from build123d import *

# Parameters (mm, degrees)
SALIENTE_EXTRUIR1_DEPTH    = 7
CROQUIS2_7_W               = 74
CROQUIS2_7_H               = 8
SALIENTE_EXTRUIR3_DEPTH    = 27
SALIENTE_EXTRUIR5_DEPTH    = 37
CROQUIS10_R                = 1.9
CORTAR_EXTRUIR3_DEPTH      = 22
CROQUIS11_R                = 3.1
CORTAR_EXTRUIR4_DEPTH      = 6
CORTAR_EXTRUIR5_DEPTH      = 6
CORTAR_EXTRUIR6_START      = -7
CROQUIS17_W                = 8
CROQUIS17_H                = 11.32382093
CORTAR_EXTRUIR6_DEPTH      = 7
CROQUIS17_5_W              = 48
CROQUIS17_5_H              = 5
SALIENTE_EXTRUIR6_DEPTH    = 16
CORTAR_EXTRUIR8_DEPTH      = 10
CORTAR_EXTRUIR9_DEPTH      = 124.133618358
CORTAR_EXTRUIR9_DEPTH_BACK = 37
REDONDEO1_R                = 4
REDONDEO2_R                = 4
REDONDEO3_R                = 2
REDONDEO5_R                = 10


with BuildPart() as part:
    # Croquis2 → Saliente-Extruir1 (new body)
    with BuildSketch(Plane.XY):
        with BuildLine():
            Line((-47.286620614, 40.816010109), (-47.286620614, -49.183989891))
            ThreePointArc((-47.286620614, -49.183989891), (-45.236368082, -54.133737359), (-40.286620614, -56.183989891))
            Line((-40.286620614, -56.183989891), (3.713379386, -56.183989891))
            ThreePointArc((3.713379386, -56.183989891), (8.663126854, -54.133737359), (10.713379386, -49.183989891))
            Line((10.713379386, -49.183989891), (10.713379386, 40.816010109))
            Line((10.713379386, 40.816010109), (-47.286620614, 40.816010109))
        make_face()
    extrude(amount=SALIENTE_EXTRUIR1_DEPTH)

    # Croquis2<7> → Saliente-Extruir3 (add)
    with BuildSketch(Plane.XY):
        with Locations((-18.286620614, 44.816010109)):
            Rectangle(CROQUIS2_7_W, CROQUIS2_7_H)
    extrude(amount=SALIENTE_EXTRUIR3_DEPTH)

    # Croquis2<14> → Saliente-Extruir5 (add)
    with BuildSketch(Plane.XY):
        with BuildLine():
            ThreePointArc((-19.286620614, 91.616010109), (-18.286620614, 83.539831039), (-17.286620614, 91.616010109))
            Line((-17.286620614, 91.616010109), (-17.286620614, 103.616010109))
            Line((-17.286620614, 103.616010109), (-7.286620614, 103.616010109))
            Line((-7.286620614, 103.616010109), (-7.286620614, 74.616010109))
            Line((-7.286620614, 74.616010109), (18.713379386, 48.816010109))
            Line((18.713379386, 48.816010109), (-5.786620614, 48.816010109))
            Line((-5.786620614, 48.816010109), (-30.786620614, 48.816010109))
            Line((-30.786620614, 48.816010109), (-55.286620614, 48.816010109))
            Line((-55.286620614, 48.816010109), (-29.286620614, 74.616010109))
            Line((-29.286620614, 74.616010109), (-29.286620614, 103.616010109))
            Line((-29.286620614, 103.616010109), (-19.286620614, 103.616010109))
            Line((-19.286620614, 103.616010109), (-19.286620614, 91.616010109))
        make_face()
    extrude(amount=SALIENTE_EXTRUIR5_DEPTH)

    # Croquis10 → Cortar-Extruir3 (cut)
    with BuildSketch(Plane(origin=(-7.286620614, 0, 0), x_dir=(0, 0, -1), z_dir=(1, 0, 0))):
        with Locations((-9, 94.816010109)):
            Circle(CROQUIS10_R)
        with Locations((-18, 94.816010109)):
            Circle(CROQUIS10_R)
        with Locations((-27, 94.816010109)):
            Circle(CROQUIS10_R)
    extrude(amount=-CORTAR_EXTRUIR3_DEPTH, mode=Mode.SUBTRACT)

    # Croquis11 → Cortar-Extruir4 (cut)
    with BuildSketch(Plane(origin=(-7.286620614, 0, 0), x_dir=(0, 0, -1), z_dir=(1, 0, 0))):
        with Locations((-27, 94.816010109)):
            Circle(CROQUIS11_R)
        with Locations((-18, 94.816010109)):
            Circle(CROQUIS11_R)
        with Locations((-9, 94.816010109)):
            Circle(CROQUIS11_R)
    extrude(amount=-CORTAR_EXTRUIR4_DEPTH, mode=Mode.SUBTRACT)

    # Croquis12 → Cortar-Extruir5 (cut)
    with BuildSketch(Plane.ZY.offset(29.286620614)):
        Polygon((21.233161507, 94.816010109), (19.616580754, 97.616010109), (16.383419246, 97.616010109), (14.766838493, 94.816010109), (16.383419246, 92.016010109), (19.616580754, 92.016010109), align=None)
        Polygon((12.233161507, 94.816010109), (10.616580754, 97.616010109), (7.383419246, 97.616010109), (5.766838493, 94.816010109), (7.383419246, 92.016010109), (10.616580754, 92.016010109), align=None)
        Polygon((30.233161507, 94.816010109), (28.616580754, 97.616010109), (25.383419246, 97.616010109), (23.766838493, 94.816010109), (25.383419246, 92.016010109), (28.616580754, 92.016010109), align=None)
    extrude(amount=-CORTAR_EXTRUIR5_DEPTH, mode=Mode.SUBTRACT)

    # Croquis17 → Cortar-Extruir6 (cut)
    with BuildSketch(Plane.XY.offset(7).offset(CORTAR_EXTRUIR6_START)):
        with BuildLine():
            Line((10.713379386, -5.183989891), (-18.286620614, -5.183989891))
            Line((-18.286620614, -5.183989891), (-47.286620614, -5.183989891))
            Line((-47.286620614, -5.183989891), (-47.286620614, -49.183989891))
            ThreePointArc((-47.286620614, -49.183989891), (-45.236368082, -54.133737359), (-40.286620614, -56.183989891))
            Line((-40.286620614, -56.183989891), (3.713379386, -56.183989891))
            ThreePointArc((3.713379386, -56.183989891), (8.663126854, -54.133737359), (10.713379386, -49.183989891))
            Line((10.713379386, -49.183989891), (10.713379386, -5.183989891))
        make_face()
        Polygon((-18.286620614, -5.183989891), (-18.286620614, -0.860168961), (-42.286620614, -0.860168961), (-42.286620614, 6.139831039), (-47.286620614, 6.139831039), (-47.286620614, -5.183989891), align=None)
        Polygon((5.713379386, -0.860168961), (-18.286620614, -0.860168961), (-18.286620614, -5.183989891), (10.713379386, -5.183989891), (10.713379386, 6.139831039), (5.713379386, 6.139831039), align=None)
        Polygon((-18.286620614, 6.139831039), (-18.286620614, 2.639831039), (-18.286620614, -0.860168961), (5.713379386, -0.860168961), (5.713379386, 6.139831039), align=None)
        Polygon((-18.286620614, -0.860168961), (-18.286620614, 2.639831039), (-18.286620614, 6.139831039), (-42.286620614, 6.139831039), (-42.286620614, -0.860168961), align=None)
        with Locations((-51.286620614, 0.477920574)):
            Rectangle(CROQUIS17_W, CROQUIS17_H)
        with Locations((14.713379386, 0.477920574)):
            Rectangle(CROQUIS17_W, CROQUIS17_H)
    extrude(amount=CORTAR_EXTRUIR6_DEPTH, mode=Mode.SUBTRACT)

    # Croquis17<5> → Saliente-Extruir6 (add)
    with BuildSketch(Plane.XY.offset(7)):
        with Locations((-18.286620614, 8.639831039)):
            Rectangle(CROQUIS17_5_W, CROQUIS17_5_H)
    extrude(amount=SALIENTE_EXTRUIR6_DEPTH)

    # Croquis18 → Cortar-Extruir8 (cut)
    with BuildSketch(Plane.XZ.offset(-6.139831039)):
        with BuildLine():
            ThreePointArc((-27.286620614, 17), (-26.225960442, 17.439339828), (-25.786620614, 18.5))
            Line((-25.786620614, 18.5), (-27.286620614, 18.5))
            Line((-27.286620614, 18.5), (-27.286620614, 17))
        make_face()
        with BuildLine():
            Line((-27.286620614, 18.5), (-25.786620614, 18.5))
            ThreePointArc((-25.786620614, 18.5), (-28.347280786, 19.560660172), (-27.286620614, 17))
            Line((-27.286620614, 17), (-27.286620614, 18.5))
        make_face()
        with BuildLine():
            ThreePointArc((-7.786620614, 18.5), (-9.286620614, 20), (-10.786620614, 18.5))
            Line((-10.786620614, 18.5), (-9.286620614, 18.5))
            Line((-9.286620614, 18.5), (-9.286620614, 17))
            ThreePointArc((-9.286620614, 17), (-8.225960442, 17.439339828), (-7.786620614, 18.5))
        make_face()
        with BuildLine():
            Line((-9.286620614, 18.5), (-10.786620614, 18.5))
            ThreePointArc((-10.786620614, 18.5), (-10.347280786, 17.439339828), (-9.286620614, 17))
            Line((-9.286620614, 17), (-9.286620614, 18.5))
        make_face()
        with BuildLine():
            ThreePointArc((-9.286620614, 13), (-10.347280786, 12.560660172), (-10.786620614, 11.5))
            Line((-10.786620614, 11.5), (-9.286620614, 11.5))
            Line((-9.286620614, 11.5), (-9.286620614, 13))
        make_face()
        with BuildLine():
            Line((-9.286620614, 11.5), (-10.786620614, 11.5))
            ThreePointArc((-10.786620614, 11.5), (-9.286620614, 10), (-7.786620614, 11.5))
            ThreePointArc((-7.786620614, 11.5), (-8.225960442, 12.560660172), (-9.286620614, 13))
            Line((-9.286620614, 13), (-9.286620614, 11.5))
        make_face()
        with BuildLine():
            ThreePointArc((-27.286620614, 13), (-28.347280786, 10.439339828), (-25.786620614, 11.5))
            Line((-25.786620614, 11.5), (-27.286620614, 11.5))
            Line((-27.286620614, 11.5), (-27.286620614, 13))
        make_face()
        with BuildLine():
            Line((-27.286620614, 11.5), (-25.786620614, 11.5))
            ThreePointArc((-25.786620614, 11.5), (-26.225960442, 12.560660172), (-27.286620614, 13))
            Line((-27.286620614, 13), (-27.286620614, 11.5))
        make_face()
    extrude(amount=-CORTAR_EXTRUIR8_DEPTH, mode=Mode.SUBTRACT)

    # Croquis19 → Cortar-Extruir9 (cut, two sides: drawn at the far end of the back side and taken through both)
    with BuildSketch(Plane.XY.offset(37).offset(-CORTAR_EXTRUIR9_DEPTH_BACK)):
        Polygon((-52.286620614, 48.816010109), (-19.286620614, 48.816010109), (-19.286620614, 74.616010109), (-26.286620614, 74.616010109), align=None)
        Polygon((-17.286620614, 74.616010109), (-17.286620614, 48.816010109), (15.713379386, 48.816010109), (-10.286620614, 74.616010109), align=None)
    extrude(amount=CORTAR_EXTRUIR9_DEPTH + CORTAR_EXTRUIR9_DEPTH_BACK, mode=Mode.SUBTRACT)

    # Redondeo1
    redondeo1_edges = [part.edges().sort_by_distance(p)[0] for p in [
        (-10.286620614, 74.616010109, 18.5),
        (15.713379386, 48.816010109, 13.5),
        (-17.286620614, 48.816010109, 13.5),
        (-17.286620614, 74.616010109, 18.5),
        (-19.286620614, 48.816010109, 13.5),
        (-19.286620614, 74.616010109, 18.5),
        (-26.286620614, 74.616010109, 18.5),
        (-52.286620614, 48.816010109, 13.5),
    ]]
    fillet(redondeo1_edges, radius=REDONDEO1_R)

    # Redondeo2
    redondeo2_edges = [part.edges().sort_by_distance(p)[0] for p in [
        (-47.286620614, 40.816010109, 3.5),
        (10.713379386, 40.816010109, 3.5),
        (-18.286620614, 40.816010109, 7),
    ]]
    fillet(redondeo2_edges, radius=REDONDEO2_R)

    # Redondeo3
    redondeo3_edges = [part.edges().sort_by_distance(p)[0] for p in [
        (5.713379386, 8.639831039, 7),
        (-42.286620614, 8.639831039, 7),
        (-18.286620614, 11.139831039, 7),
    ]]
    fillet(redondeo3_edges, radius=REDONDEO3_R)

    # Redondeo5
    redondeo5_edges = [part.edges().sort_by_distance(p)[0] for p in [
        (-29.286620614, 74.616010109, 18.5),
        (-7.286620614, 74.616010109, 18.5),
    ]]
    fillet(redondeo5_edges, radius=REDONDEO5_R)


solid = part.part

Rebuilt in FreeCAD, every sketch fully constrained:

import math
import FreeCAD as App
import Part
import Sketcher

V = App.Vector
Q = App.Units.Quantity


def edges_at(feature, points):
    """Names of the edges that pass closest to the given points."""
    edges = feature.Shape.Edges
    near = lambda p: min(range(len(edges)), key=lambda i: edges[i].distToShape(Part.Vertex(*p))[0])
    return sorted({f"Edge{near(p) + 1}" for p in points})

doc = App.newDocument("Part")
params = doc.addObject("Spreadsheet::Sheet", "Params")
for row, (alias, value) in enumerate([
    ("sketch1_radius", "7 mm"),
    ("sketch1_width", "44 mm"),
    ("sketch1_height", "90 mm"),
    ("pad1_length", "7 mm"),
    ("sketch2_width", "74 mm"),
    ("sketch2_height", "8 mm"),
    ("pad2_length", "27 mm"),
    ("sketch3_radius", "4.1 mm"),
    ("sketch3_width", "10 mm"),
    ("sketch3_width2", "74 mm"),
    ("sketch3_height", "12 mm"),
    ("sketch3_height2", "29 mm"),
    ("pad3_length", "37 mm"),
    ("sketch4_diameter", "3.8 mm"),
    ("pocket1_length", "22 mm"),
    ("sketch5_diameter", "6.2 mm"),
    ("pocket2_length", "6 mm"),
    ("pocket3_length", "6 mm"),
    ("sketch7_radius", "7 mm"),
    ("sketch7_width", "44 mm"),
    ("sketch7_width2", "8 mm"),
    ("pocket4_length", "7 mm"),
    ("sketch8_width", "48 mm"),
    ("sketch8_height", "5 mm"),
    ("pad4_length", "16 mm"),
    ("sketch9_radius", "1.5 mm"),
    ("pocket5_length", "10 mm"),
    ("sketch10_width", "33 mm"),
    ("sketch10_width2", "7 mm"),
    ("sketch10_height", "25.8 mm"),
    ("fillet_radius", "4 mm"),
    ("fillet2_radius", "4 mm"),
    ("fillet3_radius", "2 mm"),
    ("fillet4_radius", "10 mm"),
], start=1):
    params.set(f"A{row}", alias)
    params.set(f"B{row}", "=" + value)
    params.setAlias(f"B{row}", alias)

body = doc.addObject("PartDesign::Body", "Body")

# Sketch on XY plane
sketch1 = body.newObject("Sketcher::SketchObject", "Sketch")
sketch1.AttachmentSupport = (doc.getObject("XY_Plane"), [""])
sketch1.MapMode = "FlatFace"
sketch1.addGeometry([
    Part.LineSegment(V(-47.286621, 40.81601, 0), V(-47.286621, -49.18399, 0)),  # 0
    Part.ArcOfCircle(Part.Circle(V(-40.286621, -49.18399, 0), V(0, 0, 1), 7), math.radians(-180), math.radians(-90)),  # 1
    Part.LineSegment(V(-40.286621, -56.18399, 0), V(3.713379, -56.18399, 0)),  # 2
    Part.ArcOfCircle(Part.Circle(V(3.713379, -49.18399, 0), V(0, 0, 1), 7), math.radians(-90), math.radians(0)),  # 3
    Part.LineSegment(V(10.713379, -49.18399, 0), V(10.713379, 40.81601, 0)),  # 4
    Part.LineSegment(V(10.713379, 40.81601, 0), V(-47.286621, 40.81601, 0)),  # 5
], False)
sketch1.addConstraint([
    Sketcher.Constraint("Tangent", 0, 2, 1, 1),
    Sketcher.Constraint("Tangent", 1, 2, 2, 1),
    Sketcher.Constraint("Tangent", 2, 2, 3, 1),
    Sketcher.Constraint("Tangent", 3, 2, 4, 1),
    Sketcher.Constraint("Coincident", 4, 2, 5, 1),
    Sketcher.Constraint("Coincident", 5, 2, 0, 1),
    Sketcher.Constraint("Vertical", 0),
    Sketcher.Constraint("Horizontal", 2),
    Sketcher.Constraint("Vertical", 4),
    Sketcher.Constraint("Horizontal", 5),
    Sketcher.Constraint("Equal", 1, 3),
    Sketcher.Constraint("Radius", 1, Q("7 mm")),
    Sketcher.Constraint("DistanceX", 2, 1, 2, 2, Q("44 mm")),
    Sketcher.Constraint("DistanceY", 0, 2, 0, 1, Q("90 mm")),
    Sketcher.Constraint("DistanceX", 1, 3, -1, 1, Q("40.286621 mm")),
    Sketcher.Constraint("DistanceY", 1, 3, -1, 1, Q("49.18399 mm")),
])
sketch1.setExpression("Constraints[11]", "Params.sketch1_radius")
sketch1.setExpression("Constraints[12]", "Params.sketch1_width")
sketch1.setExpression("Constraints[13]", "Params.sketch1_height")
pad1 = body.newObject("PartDesign::Pad", "Pad")
pad1.Profile = sketch1
pad1.setExpression("Length", "Params.pad1_length")

# Sketch on XY plane
sketch2 = body.newObject("Sketcher::SketchObject", "Sketch001")
sketch2.AttachmentSupport = (doc.getObject("XY_Plane"), [""])
sketch2.MapMode = "FlatFace"
sketch2.addGeometry([
    Part.LineSegment(V(-55.286621, 48.81601, 0), V(-55.286621, 40.81601, 0)),
    Part.LineSegment(V(-55.286621, 40.81601, 0), V(18.713379, 40.81601, 0)),
    Part.LineSegment(V(18.713379, 40.81601, 0), V(18.713379, 48.81601, 0)),
    Part.LineSegment(V(18.713379, 48.81601, 0), V(-55.286621, 48.81601, 0)),
], False)
sketch2.addConstraint([
    Sketcher.Constraint("Coincident", 0, 2, 1, 1),
    Sketcher.Constraint("Coincident", 1, 2, 2, 1),
    Sketcher.Constraint("Coincident", 2, 2, 3, 1),
    Sketcher.Constraint("Coincident", 3, 2, 0, 1),
    Sketcher.Constraint("Vertical", 0),
    Sketcher.Constraint("Horizontal", 1),
    Sketcher.Constraint("Vertical", 2),
    Sketcher.Constraint("Horizontal", 3),
    Sketcher.Constraint("DistanceX", 1, 1, 1, 2, Q("74 mm")),
    Sketcher.Constraint("DistanceY", 0, 2, 0, 1, Q("8 mm")),
    Sketcher.Constraint("DistanceX", 0, 2, -1, 1, Q("55.286621 mm")),
    Sketcher.Constraint("DistanceY", -1, 1, 0, 2, Q("40.81601 mm")),
])
sketch2.setExpression("Constraints[8]", "Params.sketch2_width")
sketch2.setExpression("Constraints[9]", "Params.sketch2_height")
pad2 = body.newObject("PartDesign::Pad", "Pad001")
pad2.Profile = sketch2
pad2.setExpression("Length", "Params.pad2_length")

# Sketch on XY plane
sketch3 = body.newObject("Sketcher::SketchObject", "Sketch002")
sketch3.AttachmentSupport = (doc.getObject("XY_Plane"), [""])
sketch3.MapMode = "FlatFace"
sketch3.addGeometry([
    Part.ArcOfCircle(Part.Circle(V(-18.286621, 87.639831, 0), V(0, 0, 1), 4.1), math.radians(104.116981), math.radians(435.883019)),  # 0
    Part.LineSegment(V(-19.286621, 91.61601, 0), V(-19.286621, 103.61601, 0)),  # 1
    Part.LineSegment(V(-19.286621, 103.61601, 0), V(-29.286621, 103.61601, 0)),  # 2
    Part.LineSegment(V(-29.286621, 103.61601, 0), V(-29.286621, 74.61601, 0)),  # 3
    Part.LineSegment(V(-29.286621, 74.61601, 0), V(-55.286621, 48.81601, 0)),  # 4
    Part.LineSegment(V(-55.286621, 48.81601, 0), V(18.713379, 48.81601, 0)),  # 5
    Part.LineSegment(V(18.713379, 48.81601, 0), V(-7.286621, 74.61601, 0)),  # 6
    Part.LineSegment(V(-7.286621, 74.61601, 0), V(-7.286621, 103.61601, 0)),  # 7
    Part.LineSegment(V(-7.286621, 103.61601, 0), V(-17.286621, 103.61601, 0)),  # 8
    Part.LineSegment(V(-17.286621, 103.61601, 0), V(-17.286621, 91.61601, 0)),  # 9
], False)
sketch3.addConstraint([
    Sketcher.Constraint("Coincident", 0, 1, 1, 1),
    Sketcher.Constraint("Coincident", 1, 2, 2, 1),
    Sketcher.Constraint("Coincident", 2, 2, 3, 1),
    Sketcher.Constraint("Coincident", 3, 2, 4, 1),
    Sketcher.Constraint("Coincident", 4, 2, 5, 1),
    Sketcher.Constraint("Coincident", 5, 2, 6, 1),
    Sketcher.Constraint("Coincident", 6, 2, 7, 1),
    Sketcher.Constraint("Coincident", 7, 2, 8, 1),
    Sketcher.Constraint("Coincident", 8, 2, 9, 1),
    Sketcher.Constraint("Coincident", 9, 2, 0, 2),
    Sketcher.Constraint("Vertical", 1),
    Sketcher.Constraint("Horizontal", 2),
    Sketcher.Constraint("Vertical", 3),
    Sketcher.Constraint("Horizontal", 5),
    Sketcher.Constraint("Vertical", 7),
    Sketcher.Constraint("Horizontal", 8),
    Sketcher.Constraint("Vertical", 9),
    Sketcher.Constraint("Horizontal", 3, 2, 6, 2),
    Sketcher.Constraint("Horizontal", 2, 2, 7, 2),
    Sketcher.Constraint("Horizontal", 0, 1, 9, 2),
    Sketcher.Constraint("Equal", 2, 8),
    Sketcher.Constraint("Equal", 4, 6),
    Sketcher.Constraint("Radius", 0, Q("4.1 mm")),
    Sketcher.Constraint("DistanceX", 2, 2, 2, 1, Q("10 mm")),
    Sketcher.Constraint("DistanceX", 5, 1, 5, 2, Q("74 mm")),
    Sketcher.Constraint("DistanceY", 1, 1, 1, 2, Q("12 mm")),
    Sketcher.Constraint("DistanceY", 3, 2, 3, 1, Q("29 mm")),
    Sketcher.Constraint("DistanceX", 0, 1, 0, 3, Q("1 mm")),
    Sketcher.Constraint("DistanceY", 4, 2, 3, 2, Q("25.8 mm")),
    Sketcher.Constraint("DistanceX", 0, 3, -1, 1, Q("18.286621 mm")),
    Sketcher.Constraint("DistanceY", -1, 1, 0, 3, Q("87.639831 mm")),
])
sketch3.setExpression("Constraints[22]", "Params.sketch3_radius")
sketch3.setExpression("Constraints[23]", "Params.sketch3_width")
sketch3.setExpression("Constraints[24]", "Params.sketch3_width2")
sketch3.setExpression("Constraints[25]", "Params.sketch3_height")
sketch3.setExpression("Constraints[26]", "Params.sketch3_height2")
pad3 = body.newObject("PartDesign::Pad", "Pad002")
pad3.Profile = sketch3
pad3.setExpression("Length", "Params.pad3_length")

# Sketch on YZ plane
sketch4 = body.newObject("Sketcher::SketchObject", "Sketch003")
sketch4.AttachmentSupport = (doc.getObject("YZ_Plane"), [""])
sketch4.MapMode = "FlatFace"
sketch4.AttachmentOffset = App.Placement(V(0, 0, -7.286621), App.Rotation())
sketch4.addGeometry([
    Part.Circle(V(94.81601, 9, 0), V(0, 0, 1), 1.9),
    Part.Circle(V(94.81601, 18, 0), V(0, 0, 1), 1.9),
    Part.Circle(V(94.81601, 27, 0), V(0, 0, 1), 1.9),
], False)
sketch4.addConstraint([
    Sketcher.Constraint("Equal", 0, 1),
    Sketcher.Constraint("Equal", 1, 2),
    Sketcher.Constraint("Vertical", 0, 3, 1, 3),
    Sketcher.Constraint("Vertical", 1, 3, 2, 3),
    Sketcher.Constraint("Diameter", 0, Q("3.8 mm")),
    Sketcher.Constraint("DistanceY", -1, 1, 0, 3, Q("9 mm")),
    Sketcher.Constraint("DistanceY", -1, 1, 1, 3, Q("18 mm")),
    Sketcher.Constraint("DistanceY", -1, 1, 2, 3, Q("27 mm")),
    Sketcher.Constraint("DistanceX", -1, 1, 0, 3, Q("94.81601 mm")),
])
sketch4.setExpression("Constraints[4]", "Params.sketch4_diameter")
pocket1 = body.newObject("PartDesign::Pocket", "Pocket")
pocket1.Profile = sketch4
pocket1.setExpression("Length", "Params.pocket1_length")

# Sketch on YZ plane
sketch5 = body.newObject("Sketcher::SketchObject", "Sketch004")
sketch5.AttachmentSupport = (doc.getObject("YZ_Plane"), [""])
sketch5.MapMode = "FlatFace"
sketch5.AttachmentOffset = App.Placement(V(0, 0, -7.286621), App.Rotation())
sketch5.addGeometry([
    Part.Circle(V(94.81601, 27, 0), V(0, 0, 1), 3.1),
    Part.Circle(V(94.81601, 18, 0), V(0, 0, 1), 3.1),
    Part.Circle(V(94.81601, 9, 0), V(0, 0, 1), 3.1),
], False)
sketch5.addConstraint([
    Sketcher.Constraint("Equal", 0, 1),
    Sketcher.Constraint("Equal", 1, 2),
    Sketcher.Constraint("Vertical", 0, 3, 1, 3),
    Sketcher.Constraint("Vertical", 1, 3, 2, 3),
    Sketcher.Constraint("Diameter", 0, Q("6.2 mm")),
    Sketcher.Constraint("DistanceY", -1, 1, 0, 3, Q("27 mm")),
    Sketcher.Constraint("DistanceY", -1, 1, 1, 3, Q("18 mm")),
    Sketcher.Constraint("DistanceY", -1, 1, 2, 3, Q("9 mm")),
    Sketcher.Constraint("DistanceX", -1, 1, 0, 3, Q("94.81601 mm")),
])
sketch5.setExpression("Constraints[4]", "Params.sketch5_diameter")
pocket2 = body.newObject("PartDesign::Pocket", "Pocket001")
pocket2.Profile = sketch5
pocket2.setExpression("Length", "Params.pocket2_length")

# Sketch on YZ plane
sketch6 = body.newObject("Sketcher::SketchObject", "Sketch005")
sketch6.AttachmentSupport = (doc.getObject("YZ_Plane"), [""])
sketch6.MapMode = "FlatFace"
sketch6.AttachmentOffset = App.Placement(V(0, 0, -29.286621), App.Rotation())
sketch6.addGeometry([
    Part.LineSegment(V(94.81601, 21.233162, 0), V(97.61601, 19.616581, 0)),  # 0
    Part.LineSegment(V(97.61601, 19.616581, 0), V(97.61601, 16.383419, 0)),  # 1
    Part.LineSegment(V(97.61601, 16.383419, 0), V(94.81601, 14.766838, 0)),  # 2
    Part.LineSegment(V(94.81601, 14.766838, 0), V(92.01601, 16.383419, 0)),  # 3
    Part.LineSegment(V(92.01601, 16.383419, 0), V(92.01601, 19.616581, 0)),  # 4
    Part.LineSegment(V(92.01601, 19.616581, 0), V(94.81601, 21.233162, 0)),  # 5
    Part.LineSegment(V(94.81601, 12.233162, 0), V(97.61601, 10.616581, 0)),  # 6
    Part.LineSegment(V(97.61601, 10.616581, 0), V(97.61601, 7.383419, 0)),  # 7
    Part.LineSegment(V(97.61601, 7.383419, 0), V(94.81601, 5.766838, 0)),  # 8
    Part.LineSegment(V(94.81601, 5.766838, 0), V(92.01601, 7.383419, 0)),  # 9
    Part.LineSegment(V(92.01601, 7.383419, 0), V(92.01601, 10.616581, 0)),  # 10
    Part.LineSegment(V(92.01601, 10.616581, 0), V(94.81601, 12.233162, 0)),  # 11
    Part.LineSegment(V(94.81601, 30.233162, 0), V(97.61601, 28.616581, 0)),  # 12
    Part.LineSegment(V(97.61601, 28.616581, 0), V(97.61601, 25.383419, 0)),  # 13
    Part.LineSegment(V(97.61601, 25.383419, 0), V(94.81601, 23.766838, 0)),  # 14
    Part.LineSegment(V(94.81601, 23.766838, 0), V(92.01601, 25.383419, 0)),  # 15
    Part.LineSegment(V(92.01601, 25.383419, 0), V(92.01601, 28.616581, 0)),  # 16
    Part.LineSegment(V(92.01601, 28.616581, 0), V(94.81601, 30.233162, 0)),  # 17
], False)
sketch6.addConstraint([
    Sketcher.Constraint("Coincident", 0, 2, 1, 1),
    Sketcher.Constraint("Coincident", 1, 2, 2, 1),
    Sketcher.Constraint("Coincident", 2, 2, 3, 1),
    Sketcher.Constraint("Coincident", 3, 2, 4, 1),
    Sketcher.Constraint("Coincident", 4, 2, 5, 1),
    Sketcher.Constraint("Coincident", 5, 2, 0, 1),
    Sketcher.Constraint("Coincident", 6, 2, 7, 1),
    Sketcher.Constraint("Coincident", 7, 2, 8, 1),
    Sketcher.Constraint("Coincident", 8, 2, 9, 1),
    Sketcher.Constraint("Coincident", 9, 2, 10, 1),
    Sketcher.Constraint("Coincident", 10, 2, 11, 1),
    Sketcher.Constraint("Coincident", 11, 2, 6, 1),
    Sketcher.Constraint("Coincident", 12, 2, 13, 1),
    Sketcher.Constraint("Coincident", 13, 2, 14, 1),
    Sketcher.Constraint("Coincident", 14, 2, 15, 1),
    Sketcher.Constraint("Coincident", 15, 2, 16, 1),
    Sketcher.Constraint("Coincident", 16, 2, 17, 1),
    Sketcher.Constraint("Coincident", 17, 2, 12, 1),
    Sketcher.Constraint("Vertical", 1),
    Sketcher.Constraint("Vertical", 4),
    Sketcher.Constraint("Vertical", 7),
    Sketcher.Constraint("Vertical", 10),
    Sketcher.Constraint("Vertical", 13),
    Sketcher.Constraint("Vertical", 16),
    Sketcher.Constraint("Parallel", 0, 3),
    Sketcher.Constraint("Parallel", 2, 5),
    Sketcher.Constraint("Parallel", 3, 6),
    Sketcher.Constraint("Parallel", 5, 8),
    Sketcher.Constraint("Parallel", 6, 9),
    Sketcher.Constraint("Parallel", 8, 11),
    Sketcher.Constraint("Parallel", 9, 12),
    Sketcher.Constraint("Parallel", 11, 14),
    Sketcher.Constraint("Parallel", 12, 15),
    Sketcher.Constraint("Parallel", 14, 17),
    Sketcher.Constraint("Horizontal", 1, 2, 3, 2),
    Sketcher.Constraint("Horizontal", 0, 2, 4, 2),
    Sketcher.Constraint("Horizontal", 7, 2, 9, 2),
    Sketcher.Constraint("Horizontal", 6, 2, 10, 2),
    Sketcher.Constraint("Horizontal", 13, 2, 15, 2),
    Sketcher.Constraint("Horizontal", 12, 2, 16, 2),
    Sketcher.Constraint("Vertical", 2, 2, 5, 2),
    Sketcher.Constraint("Vertical", 1, 2, 6, 2),
    Sketcher.Constraint("Vertical", 5, 2, 8, 2),
    Sketcher.Constraint("Vertical", 7, 2, 12, 2),
    Sketcher.Constraint("Vertical", 11, 2, 14, 2),
    Sketcher.Constraint("Equal", 4, 7),
    Sketcher.Constraint("Equal", 10, 13),
    Sketcher.Constraint("Angle", 0, Q("-30 deg")),
    Sketcher.Constraint("DistanceY", 6, 2, 0, 2, Q("9 mm")),
    Sketcher.Constraint("DistanceY", 0, 2, 12, 2, Q("9 mm")),
    Sketcher.Constraint("DistanceX", 2, 2, 1, 2, Q("2.8 mm")),
    Sketcher.Constraint("DistanceY", 1, 2, 1, 1, Q("3.233162 mm")),
    Sketcher.Constraint("DistanceX", -1, 1, 0, 2, Q("97.61601 mm")),
    Sketcher.Constraint("DistanceY", -1, 1, 0, 2, Q("19.616581 mm")),
])
pocket3 = body.newObject("PartDesign::Pocket", "Pocket002")
pocket3.Profile = sketch6
pocket3.setExpression("Length", "Params.pocket3_length")
pocket3.Reversed = True

# Sketch on XY plane
sketch7 = body.newObject("Sketcher::SketchObject", "Sketch006")
sketch7.AttachmentSupport = (doc.getObject("XY_Plane"), [""])
sketch7.MapMode = "FlatFace"
sketch7.addGeometry([
    Part.LineSegment(V(-47.286621, -5.18399, 0), V(-47.286621, -49.18399, 0)),  # 0
    Part.ArcOfCircle(Part.Circle(V(-40.286621, -49.18399, 0), V(0, 0, 1), 7), math.radians(-180), math.radians(-90)),  # 1
    Part.LineSegment(V(-40.286621, -56.18399, 0), V(3.713379, -56.18399, 0)),  # 2
    Part.ArcOfCircle(Part.Circle(V(3.713379, -49.18399, 0), V(0, 0, 1), 7), math.radians(-90), math.radians(0)),  # 3
    Part.LineSegment(V(10.713379, -49.18399, 0), V(10.713379, -5.18399, 0)),  # 4
    Part.LineSegment(V(10.713379, -5.18399, 0), V(18.713379, -5.18399, 0)),  # 5
    Part.LineSegment(V(18.713379, -5.18399, 0), V(18.713379, 6.139831, 0)),  # 6
    Part.LineSegment(V(18.713379, 6.139831, 0), V(-55.286621, 6.139831, 0)),  # 7
    Part.LineSegment(V(-55.286621, 6.139831, 0), V(-55.286621, -5.18399, 0)),  # 8
    Part.LineSegment(V(-55.286621, -5.18399, 0), V(-47.286621, -5.18399, 0)),  # 9
], False)
sketch7.addConstraint([
    Sketcher.Constraint("Tangent", 0, 2, 1, 1),
    Sketcher.Constraint("Tangent", 1, 2, 2, 1),
    Sketcher.Constraint("Tangent", 2, 2, 3, 1),
    Sketcher.Constraint("Tangent", 3, 2, 4, 1),
    Sketcher.Constraint("Coincident", 4, 2, 5, 1),
    Sketcher.Constraint("Coincident", 5, 2, 6, 1),
    Sketcher.Constraint("Coincident", 6, 2, 7, 1),
    Sketcher.Constraint("Coincident", 7, 2, 8, 1),
    Sketcher.Constraint("Coincident", 8, 2, 9, 1),
    Sketcher.Constraint("Coincident", 9, 2, 0, 1),
    Sketcher.Constraint("Vertical", 0),
    Sketcher.Constraint("Horizontal", 2),
    Sketcher.Constraint("Vertical", 4),
    Sketcher.Constraint("Horizontal", 5),
    Sketcher.Constraint("Vertical", 6),
    Sketcher.Constraint("Horizontal", 7),
    Sketcher.Constraint("Vertical", 8),
    Sketcher.Constraint("Horizontal", 9),
    Sketcher.Constraint("Equal", 1, 3),
    Sketcher.Constraint("Horizontal", 5, 2, 8, 2),
    Sketcher.Constraint("Equal", 5, 9),
    Sketcher.Constraint("Equal", 2, 0),
    Sketcher.Constraint("Radius", 1, Q("7 mm")),
    Sketcher.Constraint("DistanceX", 2, 1, 2, 2, Q("44 mm")),
    Sketcher.Constraint("DistanceX", 5, 1, 5, 2, Q("8 mm")),
    Sketcher.Constraint("DistanceY", 6, 1, 6, 2, Q("11.323821 mm")),
    Sketcher.Constraint("DistanceX", 1, 3, -1, 1, Q("40.286621 mm")),
    Sketcher.Constraint("DistanceY", 1, 3, -1, 1, Q("49.18399 mm")),
])
sketch7.setExpression("Constraints[22]", "Params.sketch7_radius")
sketch7.setExpression("Constraints[23]", "Params.sketch7_width")
sketch7.setExpression("Constraints[24]", "Params.sketch7_width2")
pocket4 = body.newObject("PartDesign::Pocket", "Pocket003")
pocket4.Profile = sketch7
pocket4.setExpression("Length", "Params.pocket4_length")
pocket4.Reversed = True

# Sketch on XY plane
sketch8 = body.newObject("Sketcher::SketchObject", "Sketch007")
sketch8.AttachmentSupport = (doc.getObject("XY_Plane"), [""])
sketch8.MapMode = "FlatFace"
sketch8.AttachmentOffset = App.Placement(V(0, 0, 7), App.Rotation())
sketch8.addGeometry([
    Part.LineSegment(V(-42.286621, 11.139831, 0), V(-42.286621, 6.139831, 0)),
    Part.LineSegment(V(-42.286621, 6.139831, 0), V(5.713379, 6.139831, 0)),
    Part.LineSegment(V(5.713379, 6.139831, 0), V(5.713379, 11.139831, 0)),
    Part.LineSegment(V(5.713379, 11.139831, 0), V(-42.286621, 11.139831, 0)),
], False)
sketch8.addConstraint([
    Sketcher.Constraint("Coincident", 0, 2, 1, 1),
    Sketcher.Constraint("Coincident", 1, 2, 2, 1),
    Sketcher.Constraint("Coincident", 2, 2, 3, 1),
    Sketcher.Constraint("Coincident", 3, 2, 0, 1),
    Sketcher.Constraint("Vertical", 0),
    Sketcher.Constraint("Horizontal", 1),
    Sketcher.Constraint("Vertical", 2),
    Sketcher.Constraint("Horizontal", 3),
    Sketcher.Constraint("DistanceX", 1, 1, 1, 2, Q("48 mm")),
    Sketcher.Constraint("DistanceY", 0, 2, 0, 1, Q("5 mm")),
    Sketcher.Constraint("DistanceX", 0, 2, -1, 1, Q("42.286621 mm")),
    Sketcher.Constraint("DistanceY", -1, 1, 0, 2, Q("6.139831 mm")),
])
sketch8.setExpression("Constraints[8]", "Params.sketch8_width")
sketch8.setExpression("Constraints[9]", "Params.sketch8_height")
pad4 = body.newObject("PartDesign::Pad", "Pad003")
pad4.Profile = sketch8
pad4.setExpression("Length", "Params.pad4_length")

# Sketch on XZ plane
sketch9 = body.newObject("Sketcher::SketchObject", "Sketch008")
sketch9.AttachmentSupport = (doc.getObject("XZ_Plane"), [""])
sketch9.MapMode = "FlatFace"
sketch9.AttachmentOffset = App.Placement(V(0, 0, -6.139831), App.Rotation())
sketch9.addGeometry([
    Part.ArcOfCircle(Part.Circle(V(-27.286621, 18.5, 0), V(0, 0, 1), 1.5), math.radians(-90), math.radians(0)),  # 0
    Part.ArcOfCircle(Part.Circle(V(-27.286621, 18.5, 0), V(0, 0, 1), 1.5), math.radians(0), math.radians(270)),  # 1
    Part.ArcOfCircle(Part.Circle(V(-9.286621, 18.5, 0), V(0, 0, 1), 1.5), math.radians(0), math.radians(180)),  # 2
    Part.ArcOfCircle(Part.Circle(V(-9.286621, 18.5, 0), V(0, 0, 1), 1.5), math.radians(180), math.radians(270)),  # 3
    Part.ArcOfCircle(Part.Circle(V(-9.286621, 18.5, 0), V(0, 0, 1), 1.5), math.radians(-90), math.radians(0)),  # 4
    Part.ArcOfCircle(Part.Circle(V(-9.286621, 11.5, 0), V(0, 0, 1), 1.5), math.radians(90), math.radians(180)),  # 5
    Part.ArcOfCircle(Part.Circle(V(-9.286621, 11.5, 0), V(0, 0, 1), 1.5), math.radians(180), math.radians(360)),  # 6
    Part.ArcOfCircle(Part.Circle(V(-9.286621, 11.5, 0), V(0, 0, 1), 1.5), math.radians(0), math.radians(90)),  # 7
    Part.ArcOfCircle(Part.Circle(V(-27.286621, 11.5, 0), V(0, 0, 1), 1.5), math.radians(90), math.radians(360)),  # 8
    Part.ArcOfCircle(Part.Circle(V(-27.286621, 11.5, 0), V(0, 0, 1), 1.5), math.radians(0), math.radians(90)),  # 9
], False)
sketch9.addConstraint([
    Sketcher.Constraint("Tangent", 0, 1, 1, 2),
    Sketcher.Constraint("Coincident", 1, 1, 0, 2),
    Sketcher.Constraint("Tangent", 2, 2, 3, 1),
    Sketcher.Constraint("Tangent", 3, 2, 4, 1),
    Sketcher.Constraint("Tangent", 4, 2, 2, 1),
    Sketcher.Constraint("Tangent", 5, 2, 6, 1),
    Sketcher.Constraint("Tangent", 6, 2, 7, 1),
    Sketcher.Constraint("Tangent", 7, 2, 5, 1),
    Sketcher.Constraint("Tangent", 8, 1, 9, 2),
    Sketcher.Constraint("Coincident", 9, 1, 8, 2),
    Sketcher.Constraint("Equal", 1, 2),
    Sketcher.Constraint("Equal", 4, 5),
    Sketcher.Constraint("Equal", 7, 8),
    Sketcher.Constraint("Horizontal", 1, 3, 2, 3),
    Sketcher.Constraint("Horizontal", 7, 3, 8, 3),
    Sketcher.Constraint("Horizontal", 4, 3, 1, 1),
    Sketcher.Constraint("Horizontal", 1, 1, 2, 2),
    Sketcher.Constraint("Horizontal", 2, 2, 4, 2),
    Sketcher.Constraint("Horizontal", 9, 3, 5, 2),
    Sketcher.Constraint("Horizontal", 5, 2, 6, 2),
    Sketcher.Constraint("Horizontal", 6, 2, 9, 1),
    Sketcher.Constraint("Vertical", 4, 3, 5, 3),
    Sketcher.Constraint("Vertical", 1, 3, 8, 3),
    Sketcher.Constraint("Vertical", 9, 3, 0, 1),
    Sketcher.Constraint("Vertical", 7, 3, 3, 2),
    Sketcher.Constraint("Vertical", 3, 2, 7, 2),
    Sketcher.Constraint("Vertical", 0, 1, 8, 1),
    Sketcher.Constraint("Radius", 0, Q("1.5 mm")),
    Sketcher.Constraint("DistanceY", -1, 1, 0, 1, Q("17 mm")),
    Sketcher.Constraint("DistanceY", -1, 1, 7, 2, Q("13 mm")),
    Sketcher.Constraint("DistanceX", 0, 3, 2, 3, Q("18 mm")),
    Sketcher.Constraint("DistanceX", 0, 3, -1, 1, Q("27.286621 mm")),
])
sketch9.setExpression("Constraints[27]", "Params.sketch9_radius")
pocket5 = body.newObject("PartDesign::Pocket", "Pocket004")
pocket5.Profile = sketch9
pocket5.setExpression("Length", "Params.pocket5_length")

# Sketch on XY plane
sketch10 = body.newObject("Sketcher::SketchObject", "Sketch009")
sketch10.AttachmentSupport = (doc.getObject("XY_Plane"), [""])
sketch10.MapMode = "FlatFace"
sketch10.AttachmentOffset = App.Placement(V(0, 0, 37), App.Rotation())
sketch10.addGeometry([
    Part.LineSegment(V(-52.286621, 48.81601, 0), V(-19.286621, 48.81601, 0)),  # 0
    Part.LineSegment(V(-19.286621, 48.81601, 0), V(-19.286621, 74.61601, 0)),  # 1
    Part.LineSegment(V(-19.286621, 74.61601, 0), V(-26.286621, 74.61601, 0)),  # 2
    Part.LineSegment(V(-26.286621, 74.61601, 0), V(-52.286621, 48.81601, 0)),  # 3
    Part.LineSegment(V(-17.286621, 74.61601, 0), V(-17.286621, 48.81601, 0)),  # 4
    Part.LineSegment(V(-17.286621, 48.81601, 0), V(15.713379, 48.81601, 0)),  # 5
    Part.LineSegment(V(15.713379, 48.81601, 0), V(-10.286621, 74.61601, 0)),  # 6
    Part.LineSegment(V(-10.286621, 74.61601, 0), V(-17.286621, 74.61601, 0)),  # 7
], False)
sketch10.addConstraint([
    Sketcher.Constraint("Coincident", 0, 2, 1, 1),
    Sketcher.Constraint("Coincident", 1, 2, 2, 1),
    Sketcher.Constraint("Coincident", 2, 2, 3, 1),
    Sketcher.Constraint("Coincident", 3, 2, 0, 1),
    Sketcher.Constraint("Coincident", 4, 2, 5, 1),
    Sketcher.Constraint("Coincident", 5, 2, 6, 1),
    Sketcher.Constraint("Coincident", 6, 2, 7, 1),
    Sketcher.Constraint("Coincident", 7, 2, 4, 1),
    Sketcher.Constraint("Horizontal", 0),
    Sketcher.Constraint("Vertical", 1),
    Sketcher.Constraint("Horizontal", 2),
    Sketcher.Constraint("Vertical", 4),
    Sketcher.Constraint("Horizontal", 5),
    Sketcher.Constraint("Horizontal", 7),
    Sketcher.Constraint("Horizontal", 3, 2, 4, 2),
    Sketcher.Constraint("Horizontal", 2, 2, 6, 2),
    Sketcher.Constraint("Equal", 0, 5),
    Sketcher.Constraint("Equal", 2, 7),
    Sketcher.Constraint("DistanceX", 0, 1, 0, 2, Q("33 mm")),
    Sketcher.Constraint("DistanceX", 2, 2, 2, 1, Q("7 mm")),
    Sketcher.Constraint("DistanceY", 1, 1, 1, 2, Q("25.8 mm")),
    Sketcher.Constraint("DistanceX", 0, 2, 4, 2, Q("2 mm")),
    Sketcher.Constraint("DistanceX", 0, 2, -1, 1, Q("19.286621 mm")),
    Sketcher.Constraint("DistanceY", -1, 1, 0, 2, Q("48.81601 mm")),
])
sketch10.setExpression("Constraints[18]", "Params.sketch10_width")
sketch10.setExpression("Constraints[19]", "Params.sketch10_width2")
sketch10.setExpression("Constraints[20]", "Params.sketch10_height")
pocket6 = body.newObject("PartDesign::Pocket", "Pocket005")
pocket6.Profile = sketch10
pocket6.Type = "ThroughAll"
pocket6.Midplane = True
doc.recompute()

fillet = body.newObject("PartDesign::Fillet", "Fillet")
fillet.Base = (pocket6, edges_at(pocket6, [
    (-10.287, 74.616, 18.5),
    (15.713, 48.816, 13.5),
    (-17.287, 48.816, 13.5),
    (-17.287, 74.616, 18.5),
    (-19.287, 48.816, 13.5),
    (-19.287, 74.616, 18.5),
    (-26.287, 74.616, 18.5),
    (-52.287, 48.816, 13.5),
]))
fillet.setExpression("Radius", "Params.fillet_radius")
doc.recompute()

fillet2 = body.newObject("PartDesign::Fillet", "Fillet001")
fillet2.Base = (fillet, edges_at(fillet, [(-47.287, 40.816, 3.5), (10.713, 40.816, 3.5), (-18.287, 40.816, 7)]))
fillet2.setExpression("Radius", "Params.fillet2_radius")
doc.recompute()

fillet3 = body.newObject("PartDesign::Fillet", "Fillet002")
fillet3.Base = (fillet2, edges_at(fillet2, [(5.713, 8.64, 7), (-42.287, 8.64, 7), (-18.287, 11.14, 7)]))
fillet3.setExpression("Radius", "Params.fillet3_radius")
doc.recompute()

fillet4 = body.newObject("PartDesign::Fillet", "Fillet003")
fillet4.Base = (fillet3, edges_at(fillet3, [(-29.287, 74.616, 18.5), (-7.287, 74.616, 18.5)]))
fillet4.setExpression("Radius", "Params.fillet4_radius")

doc.recompute()
